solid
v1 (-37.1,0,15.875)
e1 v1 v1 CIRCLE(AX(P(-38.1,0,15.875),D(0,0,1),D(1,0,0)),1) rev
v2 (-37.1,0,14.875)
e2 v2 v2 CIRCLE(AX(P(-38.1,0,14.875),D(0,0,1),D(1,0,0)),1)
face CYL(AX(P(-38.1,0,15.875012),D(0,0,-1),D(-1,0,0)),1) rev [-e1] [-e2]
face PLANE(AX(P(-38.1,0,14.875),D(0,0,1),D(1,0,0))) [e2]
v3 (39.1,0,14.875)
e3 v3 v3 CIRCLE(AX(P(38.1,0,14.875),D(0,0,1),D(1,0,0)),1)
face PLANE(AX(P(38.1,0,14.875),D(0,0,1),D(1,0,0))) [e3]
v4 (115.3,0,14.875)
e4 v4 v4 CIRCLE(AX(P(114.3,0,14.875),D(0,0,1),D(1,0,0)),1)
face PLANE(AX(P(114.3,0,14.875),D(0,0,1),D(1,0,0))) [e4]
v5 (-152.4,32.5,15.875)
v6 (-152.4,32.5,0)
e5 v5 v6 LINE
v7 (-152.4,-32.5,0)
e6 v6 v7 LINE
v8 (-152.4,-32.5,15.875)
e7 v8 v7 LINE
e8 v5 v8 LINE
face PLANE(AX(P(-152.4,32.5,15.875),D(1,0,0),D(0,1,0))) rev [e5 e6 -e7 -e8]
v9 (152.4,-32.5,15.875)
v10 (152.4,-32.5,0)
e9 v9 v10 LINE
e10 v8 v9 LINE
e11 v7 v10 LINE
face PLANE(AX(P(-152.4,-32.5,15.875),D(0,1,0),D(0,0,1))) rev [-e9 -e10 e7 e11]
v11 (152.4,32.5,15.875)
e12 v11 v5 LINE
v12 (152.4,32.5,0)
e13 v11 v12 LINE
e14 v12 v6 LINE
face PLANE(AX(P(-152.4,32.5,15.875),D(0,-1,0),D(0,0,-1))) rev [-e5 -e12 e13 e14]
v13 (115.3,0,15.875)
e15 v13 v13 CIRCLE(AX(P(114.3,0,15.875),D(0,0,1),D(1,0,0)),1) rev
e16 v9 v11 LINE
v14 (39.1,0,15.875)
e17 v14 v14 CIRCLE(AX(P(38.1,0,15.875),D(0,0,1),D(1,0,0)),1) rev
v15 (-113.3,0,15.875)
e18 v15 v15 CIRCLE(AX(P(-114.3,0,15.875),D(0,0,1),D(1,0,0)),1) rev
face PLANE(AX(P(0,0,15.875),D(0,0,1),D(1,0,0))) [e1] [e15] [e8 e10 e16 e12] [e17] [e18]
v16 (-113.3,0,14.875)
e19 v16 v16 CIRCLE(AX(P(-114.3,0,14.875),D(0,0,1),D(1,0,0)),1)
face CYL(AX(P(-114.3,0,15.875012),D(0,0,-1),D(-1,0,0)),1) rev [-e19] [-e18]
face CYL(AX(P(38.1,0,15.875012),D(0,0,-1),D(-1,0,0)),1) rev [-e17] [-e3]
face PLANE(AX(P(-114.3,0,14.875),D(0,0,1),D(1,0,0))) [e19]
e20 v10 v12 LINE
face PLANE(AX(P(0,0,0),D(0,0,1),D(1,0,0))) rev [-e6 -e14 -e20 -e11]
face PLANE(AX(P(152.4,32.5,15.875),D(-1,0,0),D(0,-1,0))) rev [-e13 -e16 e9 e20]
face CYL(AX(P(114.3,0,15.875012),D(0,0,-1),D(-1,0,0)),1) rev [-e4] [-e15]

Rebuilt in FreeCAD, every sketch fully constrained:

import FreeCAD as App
import Part
import Sketcher
Q = App.Units.Quantity

doc = App.newDocument("Part")
body = doc.addObject("PartDesign::Body", "Body")

# Sketch on XY plane
sketch1 = body.newObject("Sketcher::SketchObject", "Sketch")
sketch1.AttachmentSupport = (doc.getObject("XY_Plane"), [""])
sketch1.MapMode = "FlatFace"
sketch1.addGeometry(Part.LineSegment(App.Vector(-152, 32, 0), App.Vector(-152, -32, 0)), False)
sketch1.addGeometry(Part.LineSegment(App.Vector(-152, -32, 0), App.Vector(152, -32, 0)), False)
sketch1.addGeometry(Part.LineSegment(App.Vector(152, -32, 0), App.Vector(152, 32, 0)), False)
sketch1.addGeometry(Part.LineSegment(App.Vector(152, 32, 0), App.Vector(-152, 32, 0)), False)
sketch1.addConstraint(Sketcher.Constraint("Coincident", 0, 2, 1, 1))
sketch1.addConstraint(Sketcher.Constraint("Coincident", 1, 2, 2, 1))
sketch1.addConstraint(Sketcher.Constraint("Coincident", 2, 2, 3, 1))
sketch1.addConstraint(Sketcher.Constraint("Coincident", 3, 2, 0, 1))
sketch1.addConstraint(Sketcher.Constraint("Vertical", 0))
sketch1.addConstraint(Sketcher.Constraint("Horizontal", 1))
sketch1.addConstraint(Sketcher.Constraint("Vertical", 2))
sketch1.addConstraint(Sketcher.Constraint("Horizontal", 3))
sketch1.addConstraint(Sketcher.Constraint("Symmetric", 0, 2, 2, 2, -1, 1))
sketch1.addConstraint(Sketcher.Constraint("DistanceY", 0, 2, 0, 1, Q("65 mm")))
sketch1.addConstraint(Sketcher.Constraint("DistanceX", 1, 1, 1, 2, Q("304.8 mm")))
pad1 = body.newObject("PartDesign::Pad", "Pad")
pad1.Profile = sketch1
pad1.Length = 15.875

# Sketch on XY plane
sketch2 = body.newObject("Sketcher::SketchObject", "Sketch001")
sketch2.AttachmentSupport = (doc.getObject("XY_Plane"), [""])
sketch2.MapMode = "FlatFace"
sketch2.AttachmentOffset = App.Placement(App.Vector(0, 0, 15.875), App.Rotation())
sketch2.addGeometry(Part.Circle(App.Vector(-38.1, 0, 0), App.Vector(0, 0, 1), 1), False)
sketch2.addGeometry(Part.Circle(App.Vector(-114.3, 0, 0), App.Vector(0, 0, 1), 1), False)
sketch2.addGeometry(Part.Circle(App.Vector(114.3, 0, 0), App.Vector(0, 0, 1), 1), False)
sketch2.addGeometry(Part.Circle(App.Vector(38.1, 0, 0), App.Vector(0, 0, 1), 1), False)
sketch2.addConstraint(Sketcher.Constraint("Equal", 0, 1))
sketch2.addConstraint(Sketcher.Constraint("Equal", 1, 2))
sketch2.addConstraint(Sketcher.Constraint("Equal", 2, 3))
sketch2.addConstraint(Sketcher.Constraint("Symmetric", 1, 3, 2, 3, -1, 1))
sketch2.addConstraint(Sketcher.Constraint("Symmetric", 0, 3, 3, 3, -1, 1))
sketch2.addConstraint(Sketcher.Constraint("PointOnObject", 0, 3, -1))
sketch2.addConstraint(Sketcher.Constraint("PointOnObject", 1, 3, -1))
sketch2.addConstraint(Sketcher.Constraint("Diameter", 0, Q("2 mm")))
sketch2.addConstraint(Sketcher.Constraint("DistanceX", 0, 3, -1, 1, Q("38.1 mm")))
sketch2.addConstraint(Sketcher.Constraint("DistanceX", 1, 3, -1, 1, Q("114.3 mm")))
pocket1 = body.newObject("PartDesign::Pocket", "Pocket")
pocket1.Profile = sketch2
pocket1.Type = "TwoLengths"
pocket1.Length = 1
pocket1.Length2 = 1
pocket1.Reversed = True

doc.recompute()
